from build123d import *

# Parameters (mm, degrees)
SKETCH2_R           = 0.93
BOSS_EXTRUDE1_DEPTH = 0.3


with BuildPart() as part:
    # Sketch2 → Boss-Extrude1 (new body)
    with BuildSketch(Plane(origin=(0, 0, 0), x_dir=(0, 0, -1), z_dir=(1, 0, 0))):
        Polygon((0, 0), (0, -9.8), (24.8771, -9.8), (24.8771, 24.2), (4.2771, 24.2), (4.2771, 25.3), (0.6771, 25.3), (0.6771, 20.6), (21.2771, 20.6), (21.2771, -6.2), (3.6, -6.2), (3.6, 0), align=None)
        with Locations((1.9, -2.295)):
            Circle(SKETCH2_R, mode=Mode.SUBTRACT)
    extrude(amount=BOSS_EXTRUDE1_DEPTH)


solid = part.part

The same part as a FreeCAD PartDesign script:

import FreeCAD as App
import Part
import Sketcher

V = App.Vector
Q = App.Units.Quantity


def add_polygon(sketch, points):
    """Adds a closed chain of lines whose ends are joined by coincident constraints."""
    first, n = sketch.GeometryCount, len(points)
    for a, b in zip(points, points[1:] + points[:1]):
        sketch.addGeometry(Part.LineSegment(App.Vector(*a, 0), App.Vector(*b, 0)), False)
    for i in range(n):
        sketch.addConstraint(Sketcher.Constraint("Coincident", first + i, 2, first + (i + 1) % n, 1))

doc = App.newDocument("Part")
body = doc.addObject("PartDesign::Body", "Body")

sketch1 = body.newObject("Sketcher::SketchObject", "Sketch")
sketch1.AttachmentSupport = (doc.getObject("YZ_Plane"), [""])
sketch1.MapMode = "FlatFace"
add_polygon(sketch1, [(0, 0), (-9.8, 0), (-9.8, -24.8771), (24.2, -24.8771), (24.2, -4.2771), (25.3, -4.2771), (25.3, -0.6771), (20.6, -0.6771), (20.6, -21.2771), (-6.2, -21.2771), (-6.2, -3.6), (0, -3.6)])
sketch1.addGeometry(Part.Circle(V(-2.295, -1.9, 0), V(0, 0, 1), 0.93), False)
sketch1.addConstraint(Sketcher.Constraint("Horizontal", 0))
sketch1.addConstraint(Sketcher.Constraint("Vertical", 1))
sketch1.addConstraint(Sketcher.Constraint("Horizontal", 2))
sketch1.addConstraint(Sketcher.Constraint("Vertical", 3))
sketch1.addConstraint(Sketcher.Constraint("Horizontal", 4))
sketch1.addConstraint(Sketcher.Constraint("Vertical", 5))
sketch1.addConstraint(Sketcher.Constraint("Horizontal", 6))
sketch1.addConstraint(Sketcher.Constraint("Vertical", 7))
sketch1.addConstraint(Sketcher.Constraint("Horizontal", 8))
sketch1.addConstraint(Sketcher.Constraint("Vertical", 9))
sketch1.addConstraint(Sketcher.Constraint("Horizontal", 10))
sketch1.addConstraint(Sketcher.Constraint("Vertical", 11))
sketch1.addConstraint(Sketcher.Constraint("Coincident", 11, 2, -1, 1))
sketch1.addConstraint(Sketcher.Constraint("Equal", 3, 7))
sketch1.addConstraint(Sketcher.Constraint("Equal", 5, 11))
sketch1.addConstraint(Sketcher.Constraint("Diameter", 12, Q("1.86 mm")))
sketch1.addConstraint(Sketcher.Constraint("DistanceX", 2, 1, 2, 2, Q("34 mm")))
sketch1.addConstraint(Sketcher.Constraint("DistanceX", 0, 2, 0, 1, Q("9.8 mm")))
sketch1.addConstraint(Sketcher.Constraint("DistanceX", 4, 1, 4, 2, Q("1.1 mm")))
sketch1.addConstraint(Sketcher.Constraint("DistanceX", 6, 2, 6, 1, Q("4.7 mm")))
sketch1.addConstraint(Sketcher.Constraint("DistanceX", 8, 2, 8, 1, Q("26.8 mm")))
sketch1.addConstraint(Sketcher.Constraint("DistanceY", 3, 1, 3, 2, Q("20.6 mm")))
sketch1.addConstraint(Sketcher.Constraint("DistanceY", 5, 1, 5, 2, Q("3.6 mm")))
sketch1.addConstraint(Sketcher.Constraint("DistanceY", 12, 3, -1, 1, Q("1.9 mm")))
sketch1.addConstraint(Sketcher.Constraint("DistanceY", 1, 2, 1, 1, Q("24.8771 mm")))
sketch1.addConstraint(Sketcher.Constraint("DistanceX", 12, 3, -1, 1, Q("2.295 mm")))
pad1 = body.newObject("PartDesign::Pad", "Pad")
pad1.Profile = sketch1
pad1.Length = 0.3

doc.recompute()
